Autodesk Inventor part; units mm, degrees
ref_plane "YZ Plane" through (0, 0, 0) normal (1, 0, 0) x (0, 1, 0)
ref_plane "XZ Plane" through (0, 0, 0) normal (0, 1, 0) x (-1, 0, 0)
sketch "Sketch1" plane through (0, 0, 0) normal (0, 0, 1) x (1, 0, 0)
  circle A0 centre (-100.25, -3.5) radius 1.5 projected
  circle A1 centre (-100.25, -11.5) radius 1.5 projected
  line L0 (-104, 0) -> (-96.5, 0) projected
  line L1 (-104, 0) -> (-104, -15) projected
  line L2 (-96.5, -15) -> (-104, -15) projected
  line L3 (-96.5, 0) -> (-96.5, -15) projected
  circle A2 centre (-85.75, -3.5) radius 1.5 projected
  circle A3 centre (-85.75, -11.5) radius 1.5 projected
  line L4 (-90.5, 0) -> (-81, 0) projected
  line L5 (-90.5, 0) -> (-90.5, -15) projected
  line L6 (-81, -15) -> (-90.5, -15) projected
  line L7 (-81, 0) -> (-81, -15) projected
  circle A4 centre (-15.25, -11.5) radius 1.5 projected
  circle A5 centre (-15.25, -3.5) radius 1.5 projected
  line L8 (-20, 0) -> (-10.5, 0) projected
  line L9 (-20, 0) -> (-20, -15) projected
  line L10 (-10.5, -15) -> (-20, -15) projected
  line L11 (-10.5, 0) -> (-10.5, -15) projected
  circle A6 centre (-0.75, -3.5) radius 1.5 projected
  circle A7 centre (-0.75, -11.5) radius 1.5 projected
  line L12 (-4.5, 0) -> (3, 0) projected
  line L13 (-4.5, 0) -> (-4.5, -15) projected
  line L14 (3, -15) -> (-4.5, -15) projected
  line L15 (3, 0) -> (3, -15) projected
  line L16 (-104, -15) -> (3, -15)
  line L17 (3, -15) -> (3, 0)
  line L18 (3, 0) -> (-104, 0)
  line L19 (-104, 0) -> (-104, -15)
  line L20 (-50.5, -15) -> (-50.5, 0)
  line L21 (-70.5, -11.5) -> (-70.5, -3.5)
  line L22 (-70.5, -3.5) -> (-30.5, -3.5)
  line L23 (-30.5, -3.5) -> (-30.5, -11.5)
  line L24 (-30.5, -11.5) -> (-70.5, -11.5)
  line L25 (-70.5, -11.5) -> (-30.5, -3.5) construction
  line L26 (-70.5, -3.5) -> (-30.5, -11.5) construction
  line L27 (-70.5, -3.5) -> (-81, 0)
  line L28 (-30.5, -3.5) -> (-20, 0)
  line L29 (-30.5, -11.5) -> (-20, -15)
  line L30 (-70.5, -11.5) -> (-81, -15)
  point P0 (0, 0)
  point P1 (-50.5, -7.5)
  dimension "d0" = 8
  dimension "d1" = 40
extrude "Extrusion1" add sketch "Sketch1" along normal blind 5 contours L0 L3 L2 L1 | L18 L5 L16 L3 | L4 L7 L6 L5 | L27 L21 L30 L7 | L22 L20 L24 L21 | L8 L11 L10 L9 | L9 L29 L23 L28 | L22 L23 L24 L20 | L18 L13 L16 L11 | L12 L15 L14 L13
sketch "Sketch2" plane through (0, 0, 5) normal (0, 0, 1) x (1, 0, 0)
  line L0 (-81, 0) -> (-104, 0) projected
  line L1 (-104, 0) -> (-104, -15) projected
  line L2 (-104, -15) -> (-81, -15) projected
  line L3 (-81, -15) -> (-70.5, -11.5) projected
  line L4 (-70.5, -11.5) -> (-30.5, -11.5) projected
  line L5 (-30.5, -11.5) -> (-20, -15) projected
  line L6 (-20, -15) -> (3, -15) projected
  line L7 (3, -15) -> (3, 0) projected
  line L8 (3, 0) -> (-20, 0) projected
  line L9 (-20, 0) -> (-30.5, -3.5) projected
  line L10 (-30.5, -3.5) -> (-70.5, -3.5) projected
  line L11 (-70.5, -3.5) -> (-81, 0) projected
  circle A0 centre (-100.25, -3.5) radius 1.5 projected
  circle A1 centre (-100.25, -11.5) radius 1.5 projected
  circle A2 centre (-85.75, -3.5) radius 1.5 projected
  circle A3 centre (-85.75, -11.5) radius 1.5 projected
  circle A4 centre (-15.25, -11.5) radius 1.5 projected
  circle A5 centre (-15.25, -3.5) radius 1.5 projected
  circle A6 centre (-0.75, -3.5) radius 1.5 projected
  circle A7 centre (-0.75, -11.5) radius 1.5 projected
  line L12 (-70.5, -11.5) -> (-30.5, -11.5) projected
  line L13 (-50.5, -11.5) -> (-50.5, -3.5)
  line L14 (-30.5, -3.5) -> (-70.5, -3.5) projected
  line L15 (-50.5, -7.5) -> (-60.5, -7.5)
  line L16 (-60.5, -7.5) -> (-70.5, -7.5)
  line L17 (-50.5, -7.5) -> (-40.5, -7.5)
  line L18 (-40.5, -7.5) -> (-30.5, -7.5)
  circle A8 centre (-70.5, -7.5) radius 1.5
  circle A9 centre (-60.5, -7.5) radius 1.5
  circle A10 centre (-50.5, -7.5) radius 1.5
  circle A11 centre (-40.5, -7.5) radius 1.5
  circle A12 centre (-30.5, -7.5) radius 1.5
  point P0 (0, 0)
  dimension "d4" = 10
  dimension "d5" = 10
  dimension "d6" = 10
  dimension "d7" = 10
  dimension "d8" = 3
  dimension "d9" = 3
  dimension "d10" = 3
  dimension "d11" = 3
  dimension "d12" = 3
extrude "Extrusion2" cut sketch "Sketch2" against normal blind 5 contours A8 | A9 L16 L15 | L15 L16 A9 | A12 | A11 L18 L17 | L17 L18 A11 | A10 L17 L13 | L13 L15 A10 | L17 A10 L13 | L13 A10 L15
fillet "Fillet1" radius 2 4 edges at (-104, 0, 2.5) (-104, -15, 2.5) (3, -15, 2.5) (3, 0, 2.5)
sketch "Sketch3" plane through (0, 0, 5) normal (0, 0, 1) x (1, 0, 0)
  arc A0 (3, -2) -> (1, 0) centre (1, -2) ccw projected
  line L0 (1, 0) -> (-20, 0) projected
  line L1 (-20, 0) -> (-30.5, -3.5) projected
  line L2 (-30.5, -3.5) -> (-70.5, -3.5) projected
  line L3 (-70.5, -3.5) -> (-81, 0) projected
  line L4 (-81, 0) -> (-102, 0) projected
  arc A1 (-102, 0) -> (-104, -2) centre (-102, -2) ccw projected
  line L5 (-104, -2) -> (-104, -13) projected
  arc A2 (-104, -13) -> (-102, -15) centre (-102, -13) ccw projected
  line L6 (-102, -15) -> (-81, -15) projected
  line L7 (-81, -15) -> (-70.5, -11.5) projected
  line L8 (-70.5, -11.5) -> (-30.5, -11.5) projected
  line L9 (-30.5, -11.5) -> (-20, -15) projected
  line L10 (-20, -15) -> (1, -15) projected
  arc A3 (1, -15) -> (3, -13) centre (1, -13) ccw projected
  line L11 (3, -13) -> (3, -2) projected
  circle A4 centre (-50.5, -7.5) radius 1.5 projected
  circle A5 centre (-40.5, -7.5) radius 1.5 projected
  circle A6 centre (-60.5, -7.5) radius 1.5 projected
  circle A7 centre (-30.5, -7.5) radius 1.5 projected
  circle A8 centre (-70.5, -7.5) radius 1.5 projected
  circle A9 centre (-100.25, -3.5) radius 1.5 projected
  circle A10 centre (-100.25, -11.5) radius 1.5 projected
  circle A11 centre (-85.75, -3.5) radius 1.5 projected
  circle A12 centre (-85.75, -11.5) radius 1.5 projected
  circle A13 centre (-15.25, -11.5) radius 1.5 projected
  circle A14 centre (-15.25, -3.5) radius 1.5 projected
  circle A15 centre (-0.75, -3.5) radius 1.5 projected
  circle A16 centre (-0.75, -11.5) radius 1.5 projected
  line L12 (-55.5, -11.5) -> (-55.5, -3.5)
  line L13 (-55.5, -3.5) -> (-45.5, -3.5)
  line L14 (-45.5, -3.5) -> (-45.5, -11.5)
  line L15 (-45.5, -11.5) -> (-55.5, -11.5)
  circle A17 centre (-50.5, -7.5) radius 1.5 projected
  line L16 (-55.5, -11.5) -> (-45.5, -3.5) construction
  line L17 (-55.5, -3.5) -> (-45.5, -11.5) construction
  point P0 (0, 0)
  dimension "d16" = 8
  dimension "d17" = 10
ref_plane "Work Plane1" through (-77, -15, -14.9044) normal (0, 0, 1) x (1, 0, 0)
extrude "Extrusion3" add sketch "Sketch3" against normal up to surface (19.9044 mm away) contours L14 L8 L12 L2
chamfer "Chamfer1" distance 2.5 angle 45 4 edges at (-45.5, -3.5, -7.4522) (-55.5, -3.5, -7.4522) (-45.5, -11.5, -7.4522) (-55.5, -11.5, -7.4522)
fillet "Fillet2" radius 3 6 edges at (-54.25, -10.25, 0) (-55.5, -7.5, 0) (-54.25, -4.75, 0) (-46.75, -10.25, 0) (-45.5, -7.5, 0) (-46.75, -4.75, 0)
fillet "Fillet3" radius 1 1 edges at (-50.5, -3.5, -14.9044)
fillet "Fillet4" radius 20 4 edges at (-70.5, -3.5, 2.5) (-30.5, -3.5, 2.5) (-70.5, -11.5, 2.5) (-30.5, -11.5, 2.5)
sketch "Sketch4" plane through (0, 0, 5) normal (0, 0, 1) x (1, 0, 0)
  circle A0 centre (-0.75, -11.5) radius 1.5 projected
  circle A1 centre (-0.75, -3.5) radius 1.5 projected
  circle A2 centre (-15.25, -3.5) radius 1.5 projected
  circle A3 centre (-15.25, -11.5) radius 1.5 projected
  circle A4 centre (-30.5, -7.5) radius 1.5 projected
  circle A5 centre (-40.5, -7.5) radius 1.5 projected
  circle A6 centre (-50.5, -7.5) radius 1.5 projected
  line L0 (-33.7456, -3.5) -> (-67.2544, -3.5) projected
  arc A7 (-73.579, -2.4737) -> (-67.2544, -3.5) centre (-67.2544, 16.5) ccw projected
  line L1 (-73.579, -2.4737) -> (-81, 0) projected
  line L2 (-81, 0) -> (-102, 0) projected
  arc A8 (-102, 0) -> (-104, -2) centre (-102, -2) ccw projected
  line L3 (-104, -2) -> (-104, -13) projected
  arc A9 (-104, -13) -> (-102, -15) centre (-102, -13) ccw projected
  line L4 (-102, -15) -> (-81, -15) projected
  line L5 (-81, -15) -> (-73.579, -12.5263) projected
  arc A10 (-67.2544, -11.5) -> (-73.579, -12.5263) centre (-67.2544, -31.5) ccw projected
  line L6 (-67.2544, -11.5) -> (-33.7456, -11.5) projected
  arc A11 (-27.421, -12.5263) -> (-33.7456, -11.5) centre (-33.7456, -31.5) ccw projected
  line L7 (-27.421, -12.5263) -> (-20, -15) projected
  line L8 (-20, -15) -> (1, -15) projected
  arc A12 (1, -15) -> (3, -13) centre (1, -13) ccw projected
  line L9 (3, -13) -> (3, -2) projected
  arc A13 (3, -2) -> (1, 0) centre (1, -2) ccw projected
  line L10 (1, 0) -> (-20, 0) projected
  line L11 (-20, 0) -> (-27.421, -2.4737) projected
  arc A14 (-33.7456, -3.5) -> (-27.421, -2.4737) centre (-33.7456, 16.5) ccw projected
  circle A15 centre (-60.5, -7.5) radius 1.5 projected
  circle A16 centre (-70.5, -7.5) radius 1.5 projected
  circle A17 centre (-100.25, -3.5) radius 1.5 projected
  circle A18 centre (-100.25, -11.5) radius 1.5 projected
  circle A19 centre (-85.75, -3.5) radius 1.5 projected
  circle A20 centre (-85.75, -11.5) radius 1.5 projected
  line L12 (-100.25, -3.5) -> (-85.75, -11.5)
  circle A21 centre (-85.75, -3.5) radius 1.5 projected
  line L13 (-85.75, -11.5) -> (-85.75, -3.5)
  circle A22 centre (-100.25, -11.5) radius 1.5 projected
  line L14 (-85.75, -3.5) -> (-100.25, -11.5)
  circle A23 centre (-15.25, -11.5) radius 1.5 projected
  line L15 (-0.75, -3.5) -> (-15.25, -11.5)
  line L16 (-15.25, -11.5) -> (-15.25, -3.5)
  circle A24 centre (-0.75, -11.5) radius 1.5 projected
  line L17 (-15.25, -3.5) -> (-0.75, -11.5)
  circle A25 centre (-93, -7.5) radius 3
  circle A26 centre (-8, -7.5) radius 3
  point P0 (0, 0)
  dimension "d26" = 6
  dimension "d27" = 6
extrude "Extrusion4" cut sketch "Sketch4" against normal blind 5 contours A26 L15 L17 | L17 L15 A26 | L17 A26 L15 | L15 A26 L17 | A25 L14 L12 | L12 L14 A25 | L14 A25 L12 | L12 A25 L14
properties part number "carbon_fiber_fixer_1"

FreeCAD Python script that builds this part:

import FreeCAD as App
import Part
import Sketcher
from FreeCAD import Vector


def edges_at(feature, points):
    """Names of the edges that pass closest to the given points."""
    edges = feature.Shape.Edges
    near = lambda p: min(range(len(edges)), key=lambda i: edges[i].distToShape(Part.Vertex(*p))[0])
    return sorted({f"Edge{near(p) + 1}" for p in points})

doc = App.newDocument("Part")
body = doc.addObject("PartDesign::Body", "Body")

# Sketch on XY plane
sketch1 = body.newObject("Sketcher::SketchObject", "Sketch")
sketch1.AttachmentSupport = (doc.getObject("XY_Plane"), [""])
sketch1.MapMode = "FlatFace"
sketch1.addGeometry([
    Part.LineSegment(Vector(-104, 0, 0), Vector(-104, -15, 0)),  # 0
    Part.LineSegment(Vector(-104, -15, 0), Vector(-81, -15, 0)),  # 1
    Part.LineSegment(Vector(-81, -15, 0), Vector(-70.5, -11.5, 0)),  # 2
    Part.LineSegment(Vector(-70.5, -11.5, 0), Vector(-30.5, -11.5, 0)),  # 3
    Part.LineSegment(Vector(-30.5, -11.5, 0), Vector(-20, -15, 0)),  # 4
    Part.LineSegment(Vector(-20, -15, 0), Vector(3, -15, 0)),  # 5
    Part.LineSegment(Vector(3, -15, 0), Vector(3, 0, 0)),  # 6
    Part.LineSegment(Vector(3, 0, 0), Vector(-20, 0, 0)),  # 7
    Part.LineSegment(Vector(-20, 0, 0), Vector(-30.5, -3.5, 0)),  # 8
    Part.LineSegment(Vector(-30.5, -3.5, 0), Vector(-70.5, -3.5, 0)),  # 9
    Part.LineSegment(Vector(-70.5, -3.5, 0), Vector(-81, 0, 0)),  # 10
    Part.LineSegment(Vector(-81, 0, 0), Vector(-104, 0, 0)),  # 11
    Part.Circle(Vector(-100.2, -11.5, 0), Vector(0, 0, 1), 1.5),  # 12
    Part.Circle(Vector(-100.2, -3.5, 0), Vector(0, 0, 1), 1.5),  # 13
    Part.Circle(Vector(-85.8, -3.5, 0), Vector(0, 0, 1), 1.5),  # 14
    Part.Circle(Vector(-85.8, -11.5, 0), Vector(0, 0, 1), 1.5),  # 15
    Part.Circle(Vector(-15.2, -3.5, 0), Vector(0, 0, 1), 1.5),  # 16
    Part.Circle(Vector(-15.2, -11.5, 0), Vector(0, 0, 1), 1.5),  # 17
    Part.Circle(Vector(-0.8, -3.5, 0), Vector(0, 0, 1), 1.5),  # 18
    Part.Circle(Vector(-0.8, -11.5, 0), Vector(0, 0, 1), 1.5),  # 19
], False)
sketch1.addConstraint([
    Sketcher.Constraint("Coincident", 0, 2, 1, 1),
    Sketcher.Constraint("Coincident", 1, 2, 2, 1),
    Sketcher.Constraint("Coincident", 2, 2, 3, 1),
    Sketcher.Constraint("Coincident", 3, 2, 4, 1),
    Sketcher.Constraint("Coincident", 4, 2, 5, 1),
    Sketcher.Constraint("Coincident", 5, 2, 6, 1),
    Sketcher.Constraint("Coincident", 6, 2, 7, 1),
    Sketcher.Constraint("Coincident", 7, 2, 8, 1),
    Sketcher.Constraint("Coincident", 8, 2, 9, 1),
    Sketcher.Constraint("Coincident", 9, 2, 10, 1),
    Sketcher.Constraint("Coincident", 10, 2, 11, 1),
    Sketcher.Constraint("Coincident", 11, 2, 0, 1),
    Sketcher.Constraint("Vertical", 0),
    Sketcher.Constraint("Horizontal", 1),
    Sketcher.Constraint("Horizontal", 3),
    Sketcher.Constraint("Horizontal", 5),
    Sketcher.Constraint("Vertical", 6),
    Sketcher.Constraint("Horizontal", 7),
    Sketcher.Constraint("Horizontal", 9),
    Sketcher.Constraint("Horizontal", 11),
    Sketcher.Constraint("Equal", 12, 13),
    Sketcher.Constraint("Equal", 13, 14),
    Sketcher.Constraint("Equal", 14, 15),
    Sketcher.Constraint("Equal", 15, 16),
    Sketcher.Constraint("Equal", 16, 17),
    Sketcher.Constraint("Equal", 17, 18),
    Sketcher.Constraint("Equal", 18, 19),
    Sketcher.Constraint("PointOnObject", 6, 2, -1),
    Sketcher.Constraint("PointOnObject", 10, 2, -1),
    Sketcher.Constraint("Parallel", 2, 8),
    Sketcher.Constraint("Parallel", 4, 10),
    Sketcher.Constraint("Horizontal", 13, 3, 14, 3),
    Sketcher.Constraint("Horizontal", 12, 3, 15, 3),
    Sketcher.Constraint("Horizontal", 14, 3, 16, 3),
    Sketcher.Constraint("Horizontal", 15, 3, 17, 3),
    Sketcher.Constraint("Horizontal", 16, 3, 18, 3),
    Sketcher.Constraint("Horizontal", 17, 3, 19, 3),
    Sketcher.Constraint("Horizontal", 19, 3, 2, 2),
    Sketcher.Constraint("Horizontal", 1, 2, 4, 2),
    Sketcher.Constraint("Horizontal", 18, 3, 8, 2),
    Sketcher.Constraint("Vertical", 12, 3, 13, 3),
    Sketcher.Constraint("Vertical", 14, 3, 15, 3),
    Sketcher.Constraint("Vertical", 16, 3, 17, 3),
    Sketcher.Constraint("Vertical", 18, 3, 19, 3),
    Sketcher.Constraint("Vertical", 4, 2, 7, 2),
    Sketcher.Constraint("Vertical", 3, 2, 8, 2),
    Sketcher.Constraint("Vertical", 2, 2, 9, 2),
    Sketcher.Constraint("Vertical", 1, 2, 10, 2),
    Sketcher.Constraint("Equal", 1, 5),
    Sketcher.Constraint("DistanceX", 3, 1, 3, 2, 40.0),
    Sketcher.Constraint("Diameter", 12, 3.0),
    Sketcher.Constraint("DistanceY", 12, 3, 13, 3, 8.0),
    Sketcher.Constraint("DistanceX", 1, 1, 1, 2, 23.0),
    Sketcher.Constraint("DistanceY", 0, 2, 0, 1, 15.0),
    Sketcher.Constraint("DistanceX", 0, 2, -1, 1, 104.0),
    Sketcher.Constraint("DistanceX", 4, 2, -1, 1, 20.0),
    Sketcher.Constraint("DistanceX", 13, 3, 16, 3, 85.0),
    Sketcher.Constraint("DistanceX", 14, 3, 18, 3, 85.0),
    Sketcher.Constraint("DistanceX", 13, 3, 14, 3, 14.5),
    Sketcher.Constraint("DistanceX", 12, 3, -1, 1, 100.25),
])
pad1 = body.newObject("PartDesign::Pad", "Pad")
pad1.Profile = sketch1
pad1.Length = 5

# Sketch on XY plane
sketch2 = body.newObject("Sketcher::SketchObject", "Sketch001")
sketch2.AttachmentSupport = (doc.getObject("XY_Plane"), [""])
sketch2.MapMode = "FlatFace"
sketch2.AttachmentOffset = App.Placement(Vector(0, 0, 5), App.Rotation())
sketch2.addGeometry([
    Part.Circle(Vector(-70.5, -7.5, 0), Vector(0, 0, 1), 1.5),  # 0
    Part.Circle(Vector(-60.5, -7.5, 0), Vector(0, 0, 1), 1.5),  # 1
    Part.Circle(Vector(-30.5, -7.5, 0), Vector(0, 0, 1), 1.5),  # 2
    Part.Circle(Vector(-40.5, -7.5, 0), Vector(0, 0, 1), 1.5),  # 3
    Part.Circle(Vector(-50.5, -7.5, 0), Vector(0, 0, 1), 1.5),  # 4
], False)
sketch2.addConstraint([
    Sketcher.Constraint("Equal", 0, 1),
    Sketcher.Constraint("Equal", 1, 2),
    Sketcher.Constraint("Equal", 2, 3),
    Sketcher.Constraint("Equal", 3, 4),
    Sketcher.Constraint("Horizontal", 0, 3, 1, 3),
    Sketcher.Constraint("Horizontal", 1, 3, 2, 3),
    Sketcher.Constraint("Horizontal", 2, 3, 3, 3),
    Sketcher.Constraint("Horizontal", 3, 3, 4, 3),
    Sketcher.Constraint("Diameter", 0, 3.0),
    Sketcher.Constraint("DistanceX", 0, 3, 1, 3, 10.0),
    Sketcher.Constraint("DistanceX", 3, 3, 2, 3, 10.0),
    Sketcher.Constraint("DistanceX", 1, 3, 4, 3, 10.0),
    Sketcher.Constraint("DistanceX", 4, 3, 3, 3, 10.0),
    Sketcher.Constraint("DistanceX", 0, 3, -1, 1, 70.5),
    Sketcher.Constraint("DistanceY", 0, 3, -1, 1, 7.5),
])
pocket1 = body.newObject("PartDesign::Pocket", "Pocket")
pocket1.Profile = sketch2
pocket1.Length = 5
doc.recompute()

fillet = body.newObject("PartDesign::Fillet", "Fillet")
fillet.Base = (pocket1, edges_at(pocket1, [
    (-104, 0, 2.5),
    (-104, -15, 2.5),
    (3, -15, 2.5),
    (3, 0, 2.5),
]))
fillet.Radius = 2

# Sketch on XY plane
sketch3 = body.newObject("Sketcher::SketchObject", "Sketch002")
sketch3.AttachmentSupport = (doc.getObject("XY_Plane"), [""])
sketch3.MapMode = "FlatFace"
sketch3.AttachmentOffset = App.Placement(Vector(0, 0, 5), App.Rotation())
sketch3.addGeometry([
    Part.LineSegment(Vector(-45.5, -11.5, 0), Vector(-45.5, -3.5, 0)),  # 0
    Part.LineSegment(Vector(-45.5, -3.5, 0), Vector(-55.5, -3.5, 0)),  # 1
    Part.LineSegment(Vector(-55.5, -3.5, 0), Vector(-55.5, -11.5, 0)),  # 2
    Part.LineSegment(Vector(-55.5, -11.5, 0), Vector(-45.5, -11.5, 0)),  # 3
    Part.Circle(Vector(-50.5, -7.5, 0), Vector(0, 0, 1), 1.5),  # 4
], False)
sketch3.addConstraint([
    Sketcher.Constraint("Coincident", 0, 2, 1, 1),
    Sketcher.Constraint("Coincident", 1, 2, 2, 1),
    Sketcher.Constraint("Coincident", 2, 2, 3, 1),
    Sketcher.Constraint("Coincident", 3, 2, 0, 1),
    Sketcher.Constraint("Vertical", 0),
    Sketcher.Constraint("Horizontal", 1),
    Sketcher.Constraint("Vertical", 2),
    Sketcher.Constraint("Horizontal", 3),
    Sketcher.Constraint("DistanceX", 1, 2, 1, 1, 10.0),
    Sketcher.Constraint("DistanceY", 0, 1, 0, 2, 8.0),
    Sketcher.Constraint("Diameter", 4, 3.0),
    Sketcher.Constraint("DistanceX", 4, 3, 0, 2, 5.0),
    Sketcher.Constraint("DistanceY", 4, 3, 0, 2, 4.0),
    Sketcher.Constraint("DistanceX", 4, 3, -1, 1, 50.5),
    Sketcher.Constraint("DistanceY", 4, 3, -1, 1, 7.5),
])
pad2 = body.newObject("PartDesign::Pad", "Pad001")
pad2.Profile = sketch3
pad2.Length = 19.9044
pad2.Reversed = True
doc.recompute()

chamfer = body.newObject("PartDesign::Chamfer", "Chamfer")
chamfer.Base = (pad2, edges_at(pad2, [
    (-45.5, -3.5, -7.452),
    (-55.5, -3.5, -7.452),
    (-45.5, -11.5, -7.452),
    (-55.5, -11.5, -7.452),
]))
chamfer.Size = 2.5
doc.recompute()

fillet2 = body.newObject("PartDesign::Fillet", "Fillet001")
fillet2.Base = (chamfer, edges_at(chamfer, [
    (-54.25, -10.25, 0),
    (-55.5, -7.5, 0),
    (-54.25, -4.75, 0),
    (-46.75, -10.25, 0),
    (-45.5, -7.5, 0),
    (-46.75, -4.75, 0),
]))
fillet2.Radius = 3
doc.recompute()

fillet3 = body.newObject("PartDesign::Fillet", "Fillet002")
fillet3.Base = (fillet2, edges_at(fillet2, [(-50.5, -3.5, -14.904)]))
fillet3.Radius = 1
doc.recompute()

fillet4 = body.newObject("PartDesign::Fillet", "Fillet003")
fillet4.Base = (fillet3, edges_at(fillet3, [
    (-70.5, -3.5, 2.5),
    (-30.5, -3.5, 2.5),
    (-70.5, -11.5, 2.5),
    (-30.5, -11.5, 2.5),
]))
fillet4.Radius = 20

# Sketch on XY plane
sketch4 = body.newObject("Sketcher::SketchObject", "Sketch003")
sketch4.AttachmentSupport = (doc.getObject("XY_Plane"), [""])
sketch4.MapMode = "FlatFace"
sketch4.AttachmentOffset = App.Placement(Vector(0, 0, 5), App.Rotation())
sketch4.addGeometry([
    Part.Circle(Vector(-8, -7.5, 0), Vector(0, 0, 1), 3),
    Part.Circle(Vector(-93, -7.5, 0), Vector(0, 0, 1), 3),
], False)
sketch4.addConstraint([
    Sketcher.Constraint("Equal", 0, 1),
    Sketcher.Constraint("Horizontal", 0, 3, 1, 3),
    Sketcher.Constraint("Diameter", 0, 6.0),
    Sketcher.Constraint("DistanceX", 0, 3, -1, 1, 8.0),
    Sketcher.Constraint("DistanceX", 1, 3, -1, 1, 93.0),
    Sketcher.Constraint("DistanceY", 0, 3, -1, 1, 7.5),
])
pocket2 = body.newObject("PartDesign::Pocket", "Pocket001")
pocket2.Profile = sketch4
pocket2.Length = 5

doc.recompute()
